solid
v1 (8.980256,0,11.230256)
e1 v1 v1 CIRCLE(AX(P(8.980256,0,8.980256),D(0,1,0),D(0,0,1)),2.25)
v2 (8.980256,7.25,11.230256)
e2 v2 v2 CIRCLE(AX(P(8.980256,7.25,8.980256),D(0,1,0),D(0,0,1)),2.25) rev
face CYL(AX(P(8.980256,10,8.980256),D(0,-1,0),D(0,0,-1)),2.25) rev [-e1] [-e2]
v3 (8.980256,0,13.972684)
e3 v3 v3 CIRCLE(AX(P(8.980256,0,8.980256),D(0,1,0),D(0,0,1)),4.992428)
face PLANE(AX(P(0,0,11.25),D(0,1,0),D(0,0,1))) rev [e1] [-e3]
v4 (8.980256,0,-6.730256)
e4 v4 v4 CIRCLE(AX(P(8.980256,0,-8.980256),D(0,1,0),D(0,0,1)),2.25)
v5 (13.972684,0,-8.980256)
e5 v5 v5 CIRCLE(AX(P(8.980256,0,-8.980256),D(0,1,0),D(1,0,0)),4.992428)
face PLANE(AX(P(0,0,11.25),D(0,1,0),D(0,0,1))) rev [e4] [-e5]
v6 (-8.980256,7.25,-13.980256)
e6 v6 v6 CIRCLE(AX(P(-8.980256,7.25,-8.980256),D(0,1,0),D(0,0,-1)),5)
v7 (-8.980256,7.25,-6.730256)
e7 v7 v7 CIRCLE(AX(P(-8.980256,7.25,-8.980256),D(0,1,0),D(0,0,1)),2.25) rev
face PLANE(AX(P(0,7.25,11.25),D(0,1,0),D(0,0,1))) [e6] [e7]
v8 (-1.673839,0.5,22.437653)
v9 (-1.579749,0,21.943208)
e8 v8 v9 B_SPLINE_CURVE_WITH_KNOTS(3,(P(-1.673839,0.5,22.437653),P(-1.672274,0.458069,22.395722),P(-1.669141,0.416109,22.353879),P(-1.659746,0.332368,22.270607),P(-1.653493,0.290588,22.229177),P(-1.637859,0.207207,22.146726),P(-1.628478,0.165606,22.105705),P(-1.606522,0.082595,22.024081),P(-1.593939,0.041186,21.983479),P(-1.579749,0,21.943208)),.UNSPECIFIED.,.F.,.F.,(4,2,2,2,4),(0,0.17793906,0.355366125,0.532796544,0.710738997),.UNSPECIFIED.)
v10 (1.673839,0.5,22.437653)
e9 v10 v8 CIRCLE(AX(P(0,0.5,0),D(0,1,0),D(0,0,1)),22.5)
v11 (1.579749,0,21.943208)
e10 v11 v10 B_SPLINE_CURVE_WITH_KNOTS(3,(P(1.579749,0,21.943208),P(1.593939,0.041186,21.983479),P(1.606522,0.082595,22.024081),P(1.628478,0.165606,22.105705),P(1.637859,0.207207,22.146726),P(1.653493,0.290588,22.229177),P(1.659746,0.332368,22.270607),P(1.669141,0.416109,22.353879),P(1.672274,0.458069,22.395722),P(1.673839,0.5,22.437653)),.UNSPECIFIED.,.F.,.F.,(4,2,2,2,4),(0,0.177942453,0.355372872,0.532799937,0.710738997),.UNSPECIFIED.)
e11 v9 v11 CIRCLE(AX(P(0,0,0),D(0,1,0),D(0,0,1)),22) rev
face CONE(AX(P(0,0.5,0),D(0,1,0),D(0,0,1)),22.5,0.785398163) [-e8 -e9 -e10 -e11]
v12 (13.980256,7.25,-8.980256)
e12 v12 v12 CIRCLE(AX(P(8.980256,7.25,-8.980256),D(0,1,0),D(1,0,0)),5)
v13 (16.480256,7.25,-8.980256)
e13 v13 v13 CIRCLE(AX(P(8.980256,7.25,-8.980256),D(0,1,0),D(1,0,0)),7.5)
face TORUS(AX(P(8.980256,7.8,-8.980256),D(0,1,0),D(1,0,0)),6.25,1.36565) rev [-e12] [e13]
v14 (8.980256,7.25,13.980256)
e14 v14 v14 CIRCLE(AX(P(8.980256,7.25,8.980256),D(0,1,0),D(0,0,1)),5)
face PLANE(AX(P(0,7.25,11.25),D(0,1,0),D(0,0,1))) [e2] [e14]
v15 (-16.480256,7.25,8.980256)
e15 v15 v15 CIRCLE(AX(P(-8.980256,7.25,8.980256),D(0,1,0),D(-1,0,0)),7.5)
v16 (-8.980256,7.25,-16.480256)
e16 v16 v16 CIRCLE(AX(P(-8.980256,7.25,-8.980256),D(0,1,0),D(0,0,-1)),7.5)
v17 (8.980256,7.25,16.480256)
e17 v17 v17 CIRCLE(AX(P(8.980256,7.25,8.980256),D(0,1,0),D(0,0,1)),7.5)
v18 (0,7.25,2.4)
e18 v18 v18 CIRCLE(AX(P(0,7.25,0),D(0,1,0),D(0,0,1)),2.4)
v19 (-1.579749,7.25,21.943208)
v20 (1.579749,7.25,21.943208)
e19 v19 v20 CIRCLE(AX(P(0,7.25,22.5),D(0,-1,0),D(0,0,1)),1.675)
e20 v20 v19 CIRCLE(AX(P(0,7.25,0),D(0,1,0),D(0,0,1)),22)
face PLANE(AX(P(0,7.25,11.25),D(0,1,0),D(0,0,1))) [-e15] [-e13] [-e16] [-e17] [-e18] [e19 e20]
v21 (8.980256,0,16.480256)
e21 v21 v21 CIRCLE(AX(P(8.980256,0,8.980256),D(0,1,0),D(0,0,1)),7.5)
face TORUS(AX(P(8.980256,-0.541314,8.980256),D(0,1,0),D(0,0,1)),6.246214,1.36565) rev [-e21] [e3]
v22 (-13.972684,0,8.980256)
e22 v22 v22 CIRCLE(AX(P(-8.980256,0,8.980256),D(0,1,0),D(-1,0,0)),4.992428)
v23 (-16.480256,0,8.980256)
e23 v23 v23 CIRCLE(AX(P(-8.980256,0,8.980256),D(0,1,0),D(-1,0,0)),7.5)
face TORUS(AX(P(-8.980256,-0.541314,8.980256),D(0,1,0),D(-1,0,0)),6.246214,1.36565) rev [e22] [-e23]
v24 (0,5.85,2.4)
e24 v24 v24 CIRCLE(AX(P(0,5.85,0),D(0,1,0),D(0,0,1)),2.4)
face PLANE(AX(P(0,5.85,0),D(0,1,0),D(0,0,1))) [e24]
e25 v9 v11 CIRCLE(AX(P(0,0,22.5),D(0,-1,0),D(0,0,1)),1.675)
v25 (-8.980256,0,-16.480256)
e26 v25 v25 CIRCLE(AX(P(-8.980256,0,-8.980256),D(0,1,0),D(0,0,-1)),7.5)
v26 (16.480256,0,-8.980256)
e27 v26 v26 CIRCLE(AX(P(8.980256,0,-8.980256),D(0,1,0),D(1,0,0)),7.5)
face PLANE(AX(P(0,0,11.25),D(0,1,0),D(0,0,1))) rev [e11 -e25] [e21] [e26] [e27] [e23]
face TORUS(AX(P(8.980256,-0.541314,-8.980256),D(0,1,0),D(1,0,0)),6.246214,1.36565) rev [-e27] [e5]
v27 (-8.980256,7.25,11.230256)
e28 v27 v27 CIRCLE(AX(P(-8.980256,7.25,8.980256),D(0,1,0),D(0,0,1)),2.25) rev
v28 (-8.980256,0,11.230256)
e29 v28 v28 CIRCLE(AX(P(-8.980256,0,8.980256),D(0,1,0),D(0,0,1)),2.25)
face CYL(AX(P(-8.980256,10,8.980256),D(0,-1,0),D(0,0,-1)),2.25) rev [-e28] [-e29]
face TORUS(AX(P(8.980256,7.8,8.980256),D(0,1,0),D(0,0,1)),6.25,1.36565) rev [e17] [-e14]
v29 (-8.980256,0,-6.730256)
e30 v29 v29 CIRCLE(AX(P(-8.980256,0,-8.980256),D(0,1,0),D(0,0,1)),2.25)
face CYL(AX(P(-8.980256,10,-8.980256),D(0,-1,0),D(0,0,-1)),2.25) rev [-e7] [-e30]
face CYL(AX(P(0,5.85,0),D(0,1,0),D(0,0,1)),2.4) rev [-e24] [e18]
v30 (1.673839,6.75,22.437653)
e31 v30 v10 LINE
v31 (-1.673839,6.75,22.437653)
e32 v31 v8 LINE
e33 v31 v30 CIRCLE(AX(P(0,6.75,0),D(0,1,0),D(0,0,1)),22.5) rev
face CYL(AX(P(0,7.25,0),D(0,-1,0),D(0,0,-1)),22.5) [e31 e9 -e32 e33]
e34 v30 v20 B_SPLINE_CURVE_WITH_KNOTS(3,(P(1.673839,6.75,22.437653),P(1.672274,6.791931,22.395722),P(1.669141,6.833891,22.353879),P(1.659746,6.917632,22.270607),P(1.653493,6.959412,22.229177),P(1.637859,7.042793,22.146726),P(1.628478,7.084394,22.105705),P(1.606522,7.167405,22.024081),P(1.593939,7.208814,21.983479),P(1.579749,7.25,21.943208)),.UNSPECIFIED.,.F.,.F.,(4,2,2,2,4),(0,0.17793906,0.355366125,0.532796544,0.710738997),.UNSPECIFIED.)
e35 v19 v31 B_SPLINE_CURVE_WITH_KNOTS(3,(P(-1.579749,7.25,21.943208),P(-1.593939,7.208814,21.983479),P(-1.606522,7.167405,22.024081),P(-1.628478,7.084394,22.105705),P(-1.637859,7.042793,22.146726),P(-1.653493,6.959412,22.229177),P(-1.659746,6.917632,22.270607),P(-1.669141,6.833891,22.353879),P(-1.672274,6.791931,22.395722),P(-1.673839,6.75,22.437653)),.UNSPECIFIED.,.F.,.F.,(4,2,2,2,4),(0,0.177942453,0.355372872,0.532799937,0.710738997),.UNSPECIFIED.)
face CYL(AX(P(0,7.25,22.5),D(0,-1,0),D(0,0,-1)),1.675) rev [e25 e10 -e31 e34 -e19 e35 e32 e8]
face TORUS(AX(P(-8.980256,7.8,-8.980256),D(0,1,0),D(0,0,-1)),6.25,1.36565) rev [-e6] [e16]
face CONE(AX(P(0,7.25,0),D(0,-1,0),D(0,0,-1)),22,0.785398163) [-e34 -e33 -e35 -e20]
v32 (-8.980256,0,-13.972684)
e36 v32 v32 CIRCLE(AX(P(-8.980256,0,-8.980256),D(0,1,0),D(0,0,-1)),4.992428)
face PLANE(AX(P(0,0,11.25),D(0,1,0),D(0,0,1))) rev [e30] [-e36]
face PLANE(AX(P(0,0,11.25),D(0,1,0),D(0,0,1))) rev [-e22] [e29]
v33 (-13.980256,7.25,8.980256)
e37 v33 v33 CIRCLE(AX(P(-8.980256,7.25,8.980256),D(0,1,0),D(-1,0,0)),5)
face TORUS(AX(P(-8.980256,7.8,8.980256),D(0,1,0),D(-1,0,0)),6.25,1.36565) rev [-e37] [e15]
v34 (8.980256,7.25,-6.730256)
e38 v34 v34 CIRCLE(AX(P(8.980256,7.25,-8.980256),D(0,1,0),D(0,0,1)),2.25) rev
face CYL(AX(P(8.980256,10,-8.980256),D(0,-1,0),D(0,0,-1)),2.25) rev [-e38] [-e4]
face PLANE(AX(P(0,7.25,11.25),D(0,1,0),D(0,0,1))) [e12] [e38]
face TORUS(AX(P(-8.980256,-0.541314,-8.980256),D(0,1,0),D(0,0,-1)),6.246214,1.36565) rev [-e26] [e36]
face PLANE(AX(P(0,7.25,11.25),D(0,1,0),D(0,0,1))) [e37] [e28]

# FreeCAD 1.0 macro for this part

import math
import FreeCAD as App
import Part
import Sketcher
Q = App.Units.Quantity


def edges_at(feature, points):
    """Names of the edges that pass closest to the given points."""
    edges = feature.Shape.Edges
    near = lambda p: min(range(len(edges)), key=lambda i: edges[i].distToShape(Part.Vertex(*p))[0])
    return sorted({f"Edge{near(p) + 1}" for p in points})

doc = App.newDocument("Part")
body = doc.addObject("PartDesign::Body", "Body")

# Sketch on XZ plane
sketch1 = body.newObject("Sketcher::SketchObject", "Sketch")
sketch1.AttachmentSupport = (doc.getObject("XZ_Plane"), [""])
sketch1.MapMode = "FlatFace"
sketch1.addGeometry([
    Part.ArcOfCircle(Part.Circle(App.Vector(0, 0, 0), App.Vector(0, 0, 1), 22.5), math.radians(94), math.radians(446)),
    Part.ArcOfCircle(Part.Circle(App.Vector(0, 22.5, 0), App.Vector(0, 0, 1), 1.7), math.radians(-178), math.radians(-2)),
], False)
sketch1.addConstraint([
    Sketcher.Constraint("Coincident", 0, 1, 1, 1),
    Sketcher.Constraint("Coincident", 1, 2, 0, 2),
    Sketcher.Constraint("Coincident", 0, 3, -1, 1),
    Sketcher.Constraint("PointOnObject", 1, 3, -2),
    Sketcher.Constraint("Radius", 0, Q("22.5 mm")),
    Sketcher.Constraint("Radius", 1, Q("1.675 mm")),
    Sketcher.Constraint("DistanceY", -1, 1, 1, 3, Q("22.5 mm")),
])
pad1 = body.newObject("PartDesign::Pad", "Pad")
pad1.Profile = sketch1
pad1.Length = 7.25
pad1.Reversed = True
doc.recompute()

chamfer = body.newObject("PartDesign::Chamfer", "Chamfer")
chamfer.Base = (pad1, edges_at(pad1, [(0, 0, -22.5), (0, 7.25, -22.5)]))
chamfer.Size = 0.5

# Sketch on XZ plane
sketch2 = body.newObject("Sketcher::SketchObject", "Sketch001")
sketch2.AttachmentSupport = (doc.getObject("XZ_Plane"), [""])
sketch2.MapMode = "FlatFace"
sketch2.addGeometry([
    Part.Circle(App.Vector(-9, -9, 0), App.Vector(0, 0, 1), 2.2),
    Part.Circle(App.Vector(9, -9, 0), App.Vector(0, 0, 1), 2.2),
    Part.Circle(App.Vector(9, 9, 0), App.Vector(0, 0, 1), 2.2),
    Part.Circle(App.Vector(-9, 9, 0), App.Vector(0, 0, 1), 2.2),
], False)
sketch2.addConstraint([
    Sketcher.Constraint("Equal", 0, 1),
    Sketcher.Constraint("Equal", 1, 2),
    Sketcher.Constraint("Equal", 2, 3),
    Sketcher.Constraint("Symmetric", 0, 3, 2, 3, -1, 1),
    Sketcher.Constraint("Symmetric", 1, 3, 3, 3, -1, 1),
    Sketcher.Constraint("Symmetric", 0, 3, 1, 3, -2),
    Sketcher.Constraint("Diameter", 0, Q("4.5 mm")),
    Sketcher.Constraint("DistanceX", 0, 3, -1, 1, Q("8.980256 mm")),
    Sketcher.Constraint("DistanceY", 0, 3, -1, 1, Q("8.980256 mm")),
])
pocket1 = body.newObject("PartDesign::Pocket", "Pocket")
pocket1.Profile = sketch2
pocket1.Length = 10

# Sketch on an angled plane
sketch3 = body.newObject("Sketcher::SketchObject", "Sketch002")
sketch3.Placement = App.Placement(App.Vector(0, 0, 0), App.Rotation(App.Vector(-0.707106781, 0, 0.707106781), App.Vector(0, 0.999999999, 0), App.Vector(-0.707106781, 0, -0.707106781), "ZXY"))
sketch3.addGeometry([
    Part.LineSegment(App.Vector(7.7, 7.2, 0), App.Vector(5.2, 7.2, 0)),
    Part.ArcOfCircle(Part.Circle(App.Vector(6.4, 7.8, 0), App.Vector(0, 0, 1), 1.4), math.radians(-156), math.radians(-24)),
    Part.LineSegment(App.Vector(5.2, 0, 0), App.Vector(7.7, 0, 0)),
    Part.ArcOfCircle(Part.Circle(App.Vector(6.5, -0.5, 0), App.Vector(0, 0, 1), 1.4), math.radians(23), math.radians(157)),
], False)
sketch3.addGeometry(Part.LineSegment(App.Vector(12.7, 7.8, 0), App.Vector(12.7, -0.5, 0)), True)  # axis
sketch3.addConstraint([
    Sketcher.Constraint("Coincident", 0, 1, 1, 2),
    Sketcher.Constraint("Coincident", 1, 1, 0, 2),
    Sketcher.Constraint("Coincident", 2, 1, 3, 2),
    Sketcher.Constraint("Coincident", 3, 1, 2, 2),
    Sketcher.Constraint("Horizontal", 0),
    Sketcher.Constraint("Horizontal", 2),
    Sketcher.Constraint("Vertical", 4),
    Sketcher.Constraint("Equal", 1, 3),
    Sketcher.Constraint("PointOnObject", 2, 1, -1),
    Sketcher.Constraint("Horizontal", 1, 3, 4, 1),
    Sketcher.Constraint("Horizontal", 3, 3, 4, 2),
    Sketcher.Constraint("Vertical", 1, 1, 2, 1),
    Sketcher.Constraint("DistanceX", 0, 2, 0, 1, Q("2.5 mm")),
    Sketcher.Constraint("DistanceX", 0, 1, 4, 1, Q("5 mm")),
    Sketcher.Constraint("DistanceY", -1, 1, 1, 3, Q("7.8 mm")),
    Sketcher.Constraint("DistanceX", -1, 1, 0, 1, Q("7.7 mm")),
    Sketcher.Constraint("DistanceY", -1, 1, 0, 1, Q("7.25 mm")),
    Sketcher.Constraint("DistanceX", 2, 1, 2, 2, Q("2.507572 mm")),
])
groove = body.newObject("PartDesign::Groove", "Groove")
groove.Profile = sketch3
groove.ReferenceAxis = (sketch3, ["Axis0"])
groove.Angle = 360
doc.recompute()

polarpattern = body.newObject("PartDesign::PolarPattern", "PolarPattern")
polarpattern.Originals = [groove]
polarpattern.Axis = (doc.getObject("Y_Axis"), [""])
polarpattern.Angle = 360
polarpattern.Occurrences = 4
body.Tip = polarpattern

# Sketch on XZ plane
sketch4 = body.newObject("Sketcher::SketchObject", "Sketch003")
sketch4.AttachmentSupport = (doc.getObject("XZ_Plane"), [""])
sketch4.MapMode = "FlatFace"
sketch4.AttachmentOffset = App.Placement(App.Vector(0, 0, -7.25), App.Rotation())
sketch4.addGeometry(Part.Circle(App.Vector(0, 0, 0), App.Vector(0, 0, 1), 2.4), False)
sketch4.addConstraint([
    Sketcher.Constraint("Coincident", 0, 3, -1, 1),
    Sketcher.Constraint("Diameter", 0, Q("4.8 mm")),
])
pocket2 = body.newObject("PartDesign::Pocket", "Pocket001")
pocket2.Profile = sketch4
pocket2.Length = 1.4
pocket2.Reversed = True

doc.recompute()
